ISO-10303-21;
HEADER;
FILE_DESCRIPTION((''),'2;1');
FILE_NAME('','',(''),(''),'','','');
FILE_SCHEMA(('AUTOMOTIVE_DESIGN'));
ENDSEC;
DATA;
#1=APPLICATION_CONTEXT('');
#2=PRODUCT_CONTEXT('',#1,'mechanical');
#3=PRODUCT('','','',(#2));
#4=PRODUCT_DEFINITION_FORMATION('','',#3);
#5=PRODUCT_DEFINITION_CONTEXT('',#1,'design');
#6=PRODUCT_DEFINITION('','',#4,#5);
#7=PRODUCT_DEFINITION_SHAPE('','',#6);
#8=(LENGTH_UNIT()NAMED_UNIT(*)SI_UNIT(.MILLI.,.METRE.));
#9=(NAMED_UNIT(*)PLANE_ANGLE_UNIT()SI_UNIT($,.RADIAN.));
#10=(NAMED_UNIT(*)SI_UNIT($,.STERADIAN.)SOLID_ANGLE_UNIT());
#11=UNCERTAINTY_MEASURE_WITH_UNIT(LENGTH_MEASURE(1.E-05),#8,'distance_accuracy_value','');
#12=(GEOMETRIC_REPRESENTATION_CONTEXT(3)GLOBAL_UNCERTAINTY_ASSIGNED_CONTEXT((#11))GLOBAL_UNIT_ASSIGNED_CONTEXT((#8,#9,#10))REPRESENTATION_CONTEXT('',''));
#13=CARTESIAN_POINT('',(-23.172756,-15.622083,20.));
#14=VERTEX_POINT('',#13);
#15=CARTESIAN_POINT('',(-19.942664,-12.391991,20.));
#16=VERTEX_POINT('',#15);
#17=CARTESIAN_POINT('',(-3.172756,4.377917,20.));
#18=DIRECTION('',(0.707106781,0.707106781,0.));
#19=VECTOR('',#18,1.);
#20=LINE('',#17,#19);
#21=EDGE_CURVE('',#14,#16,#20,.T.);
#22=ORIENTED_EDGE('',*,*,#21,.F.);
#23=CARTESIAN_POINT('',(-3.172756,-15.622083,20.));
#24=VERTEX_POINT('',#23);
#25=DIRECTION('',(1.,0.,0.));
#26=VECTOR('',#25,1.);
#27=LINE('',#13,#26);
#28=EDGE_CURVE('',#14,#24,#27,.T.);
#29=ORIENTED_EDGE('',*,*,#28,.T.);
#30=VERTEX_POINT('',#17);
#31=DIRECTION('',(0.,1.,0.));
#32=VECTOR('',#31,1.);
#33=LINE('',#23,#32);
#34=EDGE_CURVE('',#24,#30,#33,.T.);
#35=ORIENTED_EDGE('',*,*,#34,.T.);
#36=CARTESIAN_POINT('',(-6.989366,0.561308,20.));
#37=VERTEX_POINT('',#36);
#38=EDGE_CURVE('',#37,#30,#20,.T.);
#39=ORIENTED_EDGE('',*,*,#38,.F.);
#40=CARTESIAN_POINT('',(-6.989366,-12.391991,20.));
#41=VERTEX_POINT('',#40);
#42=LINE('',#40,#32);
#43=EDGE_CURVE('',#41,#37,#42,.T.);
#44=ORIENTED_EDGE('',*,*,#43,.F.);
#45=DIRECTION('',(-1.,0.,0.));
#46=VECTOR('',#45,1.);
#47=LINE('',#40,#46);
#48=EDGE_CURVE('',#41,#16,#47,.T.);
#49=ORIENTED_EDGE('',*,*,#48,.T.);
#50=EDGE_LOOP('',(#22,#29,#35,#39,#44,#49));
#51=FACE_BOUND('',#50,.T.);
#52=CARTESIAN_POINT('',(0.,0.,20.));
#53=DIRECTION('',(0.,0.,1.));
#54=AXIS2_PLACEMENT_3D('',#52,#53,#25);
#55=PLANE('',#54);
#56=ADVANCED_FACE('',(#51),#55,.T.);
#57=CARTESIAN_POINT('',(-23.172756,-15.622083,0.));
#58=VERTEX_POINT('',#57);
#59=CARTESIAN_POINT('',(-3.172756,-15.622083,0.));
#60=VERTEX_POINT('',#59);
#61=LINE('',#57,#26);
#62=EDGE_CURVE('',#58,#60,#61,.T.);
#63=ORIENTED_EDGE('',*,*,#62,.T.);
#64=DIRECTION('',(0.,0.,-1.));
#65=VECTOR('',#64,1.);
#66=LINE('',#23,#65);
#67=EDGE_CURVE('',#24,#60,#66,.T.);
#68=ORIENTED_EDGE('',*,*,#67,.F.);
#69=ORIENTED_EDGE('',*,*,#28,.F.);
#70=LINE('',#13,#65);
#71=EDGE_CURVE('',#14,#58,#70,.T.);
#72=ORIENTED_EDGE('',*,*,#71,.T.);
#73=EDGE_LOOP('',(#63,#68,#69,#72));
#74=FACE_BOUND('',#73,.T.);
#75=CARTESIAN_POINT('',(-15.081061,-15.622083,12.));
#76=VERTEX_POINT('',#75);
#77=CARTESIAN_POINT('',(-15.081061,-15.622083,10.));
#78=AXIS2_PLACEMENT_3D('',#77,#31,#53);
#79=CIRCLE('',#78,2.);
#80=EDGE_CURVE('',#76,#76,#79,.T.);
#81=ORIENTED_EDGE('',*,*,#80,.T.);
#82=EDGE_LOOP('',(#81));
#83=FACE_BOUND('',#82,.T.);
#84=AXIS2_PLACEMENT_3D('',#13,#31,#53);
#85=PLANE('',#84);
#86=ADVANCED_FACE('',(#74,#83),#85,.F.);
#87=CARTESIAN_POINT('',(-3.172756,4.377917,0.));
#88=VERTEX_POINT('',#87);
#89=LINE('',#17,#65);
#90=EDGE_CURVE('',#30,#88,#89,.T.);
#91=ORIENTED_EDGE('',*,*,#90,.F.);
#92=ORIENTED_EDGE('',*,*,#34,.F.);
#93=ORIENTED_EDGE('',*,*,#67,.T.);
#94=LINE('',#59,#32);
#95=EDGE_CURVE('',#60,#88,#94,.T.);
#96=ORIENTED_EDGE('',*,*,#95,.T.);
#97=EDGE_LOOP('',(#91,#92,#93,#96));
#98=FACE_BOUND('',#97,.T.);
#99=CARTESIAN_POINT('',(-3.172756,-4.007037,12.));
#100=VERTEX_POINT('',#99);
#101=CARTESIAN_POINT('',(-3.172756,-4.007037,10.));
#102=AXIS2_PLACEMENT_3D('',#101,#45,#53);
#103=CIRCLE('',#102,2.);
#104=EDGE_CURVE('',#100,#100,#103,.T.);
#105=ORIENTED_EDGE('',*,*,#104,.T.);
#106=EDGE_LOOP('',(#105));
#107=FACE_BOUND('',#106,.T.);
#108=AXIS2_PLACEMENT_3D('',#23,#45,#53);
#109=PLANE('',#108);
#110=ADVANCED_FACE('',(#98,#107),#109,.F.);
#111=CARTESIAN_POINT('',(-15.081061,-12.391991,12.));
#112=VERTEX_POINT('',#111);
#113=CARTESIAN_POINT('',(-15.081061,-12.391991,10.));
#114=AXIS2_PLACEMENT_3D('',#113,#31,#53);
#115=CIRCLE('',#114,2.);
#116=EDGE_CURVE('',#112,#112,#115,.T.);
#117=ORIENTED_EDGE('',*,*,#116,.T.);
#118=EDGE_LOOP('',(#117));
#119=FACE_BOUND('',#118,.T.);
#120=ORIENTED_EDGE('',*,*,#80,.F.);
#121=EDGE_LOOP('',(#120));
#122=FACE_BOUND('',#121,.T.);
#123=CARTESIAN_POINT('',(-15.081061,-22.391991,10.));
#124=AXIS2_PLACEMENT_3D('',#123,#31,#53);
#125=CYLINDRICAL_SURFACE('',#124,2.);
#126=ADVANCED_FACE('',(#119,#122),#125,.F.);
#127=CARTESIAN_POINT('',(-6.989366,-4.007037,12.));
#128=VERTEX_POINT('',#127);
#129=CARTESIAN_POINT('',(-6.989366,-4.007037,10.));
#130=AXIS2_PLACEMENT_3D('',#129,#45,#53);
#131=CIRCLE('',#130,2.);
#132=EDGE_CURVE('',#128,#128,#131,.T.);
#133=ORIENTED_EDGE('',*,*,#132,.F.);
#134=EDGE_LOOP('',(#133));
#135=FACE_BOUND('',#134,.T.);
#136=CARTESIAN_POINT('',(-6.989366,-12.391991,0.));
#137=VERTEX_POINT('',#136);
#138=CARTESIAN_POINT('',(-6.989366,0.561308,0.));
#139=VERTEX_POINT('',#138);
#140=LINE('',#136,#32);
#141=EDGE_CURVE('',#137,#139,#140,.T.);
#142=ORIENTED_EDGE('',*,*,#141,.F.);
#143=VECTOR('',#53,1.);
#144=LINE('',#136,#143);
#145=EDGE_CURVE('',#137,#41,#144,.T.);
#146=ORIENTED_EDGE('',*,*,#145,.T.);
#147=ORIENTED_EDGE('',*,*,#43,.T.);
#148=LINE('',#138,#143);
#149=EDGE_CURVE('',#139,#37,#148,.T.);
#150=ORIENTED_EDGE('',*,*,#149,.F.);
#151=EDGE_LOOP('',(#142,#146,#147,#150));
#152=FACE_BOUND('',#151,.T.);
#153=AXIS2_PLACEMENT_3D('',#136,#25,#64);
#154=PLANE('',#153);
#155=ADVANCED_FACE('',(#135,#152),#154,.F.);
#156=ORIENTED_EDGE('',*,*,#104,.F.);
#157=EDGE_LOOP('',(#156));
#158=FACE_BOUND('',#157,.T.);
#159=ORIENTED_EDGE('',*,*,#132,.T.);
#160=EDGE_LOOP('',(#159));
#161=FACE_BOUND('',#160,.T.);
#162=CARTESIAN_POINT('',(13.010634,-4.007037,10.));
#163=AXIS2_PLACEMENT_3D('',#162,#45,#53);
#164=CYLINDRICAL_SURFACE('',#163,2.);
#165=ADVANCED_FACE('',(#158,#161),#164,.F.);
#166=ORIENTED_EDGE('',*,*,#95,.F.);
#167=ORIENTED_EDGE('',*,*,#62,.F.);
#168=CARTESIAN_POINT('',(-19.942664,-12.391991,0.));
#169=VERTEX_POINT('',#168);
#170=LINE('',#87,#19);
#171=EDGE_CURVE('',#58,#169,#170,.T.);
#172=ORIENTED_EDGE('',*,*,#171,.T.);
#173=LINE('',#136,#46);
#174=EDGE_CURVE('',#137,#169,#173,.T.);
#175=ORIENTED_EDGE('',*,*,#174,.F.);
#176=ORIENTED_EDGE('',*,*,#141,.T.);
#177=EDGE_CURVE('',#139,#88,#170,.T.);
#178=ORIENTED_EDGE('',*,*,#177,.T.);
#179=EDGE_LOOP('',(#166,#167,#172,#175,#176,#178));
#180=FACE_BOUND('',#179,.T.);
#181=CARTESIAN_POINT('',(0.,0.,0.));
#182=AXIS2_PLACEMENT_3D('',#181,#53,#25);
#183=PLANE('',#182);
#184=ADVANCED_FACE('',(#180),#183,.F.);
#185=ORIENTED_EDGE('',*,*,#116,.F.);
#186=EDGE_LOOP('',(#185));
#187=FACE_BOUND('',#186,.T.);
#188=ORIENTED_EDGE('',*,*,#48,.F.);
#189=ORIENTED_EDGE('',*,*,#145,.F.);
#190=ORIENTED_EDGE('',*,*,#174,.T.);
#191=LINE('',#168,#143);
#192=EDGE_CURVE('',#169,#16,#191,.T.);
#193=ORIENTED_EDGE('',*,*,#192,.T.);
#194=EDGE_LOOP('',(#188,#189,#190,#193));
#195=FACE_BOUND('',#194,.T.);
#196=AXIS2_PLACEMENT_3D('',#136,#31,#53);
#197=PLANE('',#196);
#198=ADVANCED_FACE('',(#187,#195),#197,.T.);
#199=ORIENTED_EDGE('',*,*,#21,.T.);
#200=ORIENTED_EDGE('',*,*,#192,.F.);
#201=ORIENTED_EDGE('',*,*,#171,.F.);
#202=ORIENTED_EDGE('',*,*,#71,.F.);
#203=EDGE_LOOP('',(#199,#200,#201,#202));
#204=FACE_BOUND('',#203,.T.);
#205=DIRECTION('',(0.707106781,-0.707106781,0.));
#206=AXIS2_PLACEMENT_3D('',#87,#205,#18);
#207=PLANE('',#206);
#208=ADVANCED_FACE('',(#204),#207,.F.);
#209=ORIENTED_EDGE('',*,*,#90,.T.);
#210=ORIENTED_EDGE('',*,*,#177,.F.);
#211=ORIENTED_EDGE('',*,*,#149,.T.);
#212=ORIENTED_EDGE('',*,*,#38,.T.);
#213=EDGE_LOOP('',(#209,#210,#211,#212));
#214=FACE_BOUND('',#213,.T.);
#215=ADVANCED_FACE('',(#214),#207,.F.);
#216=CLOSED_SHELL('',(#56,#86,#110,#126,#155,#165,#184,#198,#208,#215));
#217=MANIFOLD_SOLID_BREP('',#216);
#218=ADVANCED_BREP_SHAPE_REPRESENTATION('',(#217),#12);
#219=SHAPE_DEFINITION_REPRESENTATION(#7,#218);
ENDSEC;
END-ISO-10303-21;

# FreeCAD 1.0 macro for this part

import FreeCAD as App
import Part
import Sketcher


def add_polygon(sketch, points):
    """Adds a closed chain of lines whose ends are joined by coincident constraints."""
    first, n = sketch.GeometryCount, len(points)
    for a, b in zip(points, points[1:] + points[:1]):
        sketch.addGeometry(Part.LineSegment(App.Vector(*a, 0), App.Vector(*b, 0)), False)
    for i in range(n):
        sketch.addConstraint(Sketcher.Constraint("Coincident", first + i, 2, first + (i + 1) % n, 1))

doc = App.newDocument("Part")
body = doc.addObject("PartDesign::Body", "Body")

# Sketch on XY plane
sketch1 = body.newObject("Sketcher::SketchObject", "Sketch")
sketch1.AttachmentSupport = (doc.getObject("XY_Plane"), [""])
sketch1.MapMode = "FlatFace"
add_polygon(sketch1, [(-23.172756, 4.377917), (-23.172756, -15.622083), (-3.172756, -15.622083), (-3.172756, 4.377917)])  # lines 0-3
sketch1.addConstraint([
    Sketcher.Constraint("Vertical", 0),
    Sketcher.Constraint("Horizontal", 1),
    Sketcher.Constraint("Vertical", 2),
    Sketcher.Constraint("Horizontal", 3),
    Sketcher.Constraint("Equal", 3, 0),
    Sketcher.Constraint("DistanceX", 1, 1, 1, 2, 20.0),
    Sketcher.Constraint("DistanceX", 0, 2, -1, 1, 23.172756),
    Sketcher.Constraint("DistanceY", 0, 2, -1, 1, 15.622083),
])
pad1 = body.newObject("PartDesign::Pad", "Pad")
pad1.Profile = sketch1
pad1.Length = 20

# Sketch on XY plane
sketch2 = body.newObject("Sketcher::SketchObject", "Sketch001")
sketch2.AttachmentSupport = (doc.getObject("XY_Plane"), [""])
sketch2.MapMode = "FlatFace"
sketch2.AttachmentOffset = App.Placement(App.Vector(0, 0, 20), App.Rotation())
add_polygon(sketch2, [(-23.172756, -15.622083), (-3.172756, 4.377917), (-23.172756, 4.377917)])  # lines 0-2
sketch2.addConstraint([
    Sketcher.Constraint("Horizontal", 1),
    Sketcher.Constraint("Vertical", 2),
    Sketcher.Constraint("Equal", 1, 2),
    Sketcher.Constraint("DistanceX", 1, 2, 1, 1, 20.0),
    Sketcher.Constraint("DistanceX", 0, 2, -1, 1, 3.172756),
    Sketcher.Constraint("DistanceY", -1, 1, 0, 2, 4.377917),
])
pocket1 = body.newObject("PartDesign::Pocket", "Pocket")
pocket1.Profile = sketch2
pocket1.Length = 20

# Sketch on XY plane
sketch3 = body.newObject("Sketcher::SketchObject", "Sketch002")
sketch3.AttachmentSupport = (doc.getObject("XY_Plane"), [""])
sketch3.MapMode = "FlatFace"
sketch3.AttachmentOffset = App.Placement(App.Vector(0, 0, 20), App.Rotation())
add_polygon(sketch3, [(-24.214045, 4.856421), (-24.214045, -12.391991), (-6.989366, -12.391991), (-6.989366, 4.856421)])  # lines 0-3
sketch3.addConstraint([
    Sketcher.Constraint("Vertical", 0),
    Sketcher.Constraint("Horizontal", 1),
    Sketcher.Constraint("Vertical", 2),
    Sketcher.Constraint("Horizontal", 3),
    Sketcher.Constraint("DistanceX", 1, 1, 1, 2, 17.224679),
    Sketcher.Constraint("DistanceY", 0, 2, 0, 1, 17.248412),
    Sketcher.Constraint("DistanceY", 0, 2, -1, 1, 12.391991),
    Sketcher.Constraint("DistanceX", 0, 2, -1, 1, 24.214045),
])
pocket2 = body.newObject("PartDesign::Pocket", "Pocket001")
pocket2.Profile = sketch3
pocket2.Length = 20

# Sketch on YZ plane
sketch4 = body.newObject("Sketcher::SketchObject", "Sketch003")
sketch4.AttachmentSupport = (doc.getObject("YZ_Plane"), [""])
sketch4.MapMode = "FlatFace"
sketch4.AttachmentOffset = App.Placement(App.Vector(0, 0, -6.989366), App.Rotation())
sketch4.addGeometry(Part.Circle(App.Vector(-4.007037, 10, 0), App.Vector(0, 0, 1), 2), False)
sketch4.addConstraint([
    Sketcher.Constraint("Diameter", 0, 4.0),
    Sketcher.Constraint("DistanceY", -1, 1, 0, 3, 10.0),
    Sketcher.Constraint("DistanceX", 0, 3, -1, 1, 4.007037),
])
pocket3 = body.newObject("PartDesign::Pocket", "Pocket002")
pocket3.Profile = sketch4
pocket3.Length = 20
pocket3.Reversed = True

# Sketch on XZ plane
sketch5 = body.newObject("Sketcher::SketchObject", "Sketch004")
sketch5.AttachmentSupport = (doc.getObject("XZ_Plane"), [""])
sketch5.MapMode = "FlatFace"
sketch5.AttachmentOffset = App.Placement(App.Vector(0, 0, 12.391991), App.Rotation())
sketch5.addGeometry(Part.Circle(App.Vector(-15.081061, 10, 0), App.Vector(0, 0, 1), 2), False)
sketch5.addConstraint([
    Sketcher.Constraint("Diameter", 0, 4.0),
    Sketcher.Constraint("DistanceY", -1, 1, 0, 3, 10.0),
    Sketcher.Constraint("DistanceX", 0, 3, -1, 1, 15.081061),
])
pocket4 = body.newObject("PartDesign::Pocket", "Pocket003")
pocket4.Profile = sketch5
pocket4.Length = 10
pocket4.Reversed = True

doc.recompute()
